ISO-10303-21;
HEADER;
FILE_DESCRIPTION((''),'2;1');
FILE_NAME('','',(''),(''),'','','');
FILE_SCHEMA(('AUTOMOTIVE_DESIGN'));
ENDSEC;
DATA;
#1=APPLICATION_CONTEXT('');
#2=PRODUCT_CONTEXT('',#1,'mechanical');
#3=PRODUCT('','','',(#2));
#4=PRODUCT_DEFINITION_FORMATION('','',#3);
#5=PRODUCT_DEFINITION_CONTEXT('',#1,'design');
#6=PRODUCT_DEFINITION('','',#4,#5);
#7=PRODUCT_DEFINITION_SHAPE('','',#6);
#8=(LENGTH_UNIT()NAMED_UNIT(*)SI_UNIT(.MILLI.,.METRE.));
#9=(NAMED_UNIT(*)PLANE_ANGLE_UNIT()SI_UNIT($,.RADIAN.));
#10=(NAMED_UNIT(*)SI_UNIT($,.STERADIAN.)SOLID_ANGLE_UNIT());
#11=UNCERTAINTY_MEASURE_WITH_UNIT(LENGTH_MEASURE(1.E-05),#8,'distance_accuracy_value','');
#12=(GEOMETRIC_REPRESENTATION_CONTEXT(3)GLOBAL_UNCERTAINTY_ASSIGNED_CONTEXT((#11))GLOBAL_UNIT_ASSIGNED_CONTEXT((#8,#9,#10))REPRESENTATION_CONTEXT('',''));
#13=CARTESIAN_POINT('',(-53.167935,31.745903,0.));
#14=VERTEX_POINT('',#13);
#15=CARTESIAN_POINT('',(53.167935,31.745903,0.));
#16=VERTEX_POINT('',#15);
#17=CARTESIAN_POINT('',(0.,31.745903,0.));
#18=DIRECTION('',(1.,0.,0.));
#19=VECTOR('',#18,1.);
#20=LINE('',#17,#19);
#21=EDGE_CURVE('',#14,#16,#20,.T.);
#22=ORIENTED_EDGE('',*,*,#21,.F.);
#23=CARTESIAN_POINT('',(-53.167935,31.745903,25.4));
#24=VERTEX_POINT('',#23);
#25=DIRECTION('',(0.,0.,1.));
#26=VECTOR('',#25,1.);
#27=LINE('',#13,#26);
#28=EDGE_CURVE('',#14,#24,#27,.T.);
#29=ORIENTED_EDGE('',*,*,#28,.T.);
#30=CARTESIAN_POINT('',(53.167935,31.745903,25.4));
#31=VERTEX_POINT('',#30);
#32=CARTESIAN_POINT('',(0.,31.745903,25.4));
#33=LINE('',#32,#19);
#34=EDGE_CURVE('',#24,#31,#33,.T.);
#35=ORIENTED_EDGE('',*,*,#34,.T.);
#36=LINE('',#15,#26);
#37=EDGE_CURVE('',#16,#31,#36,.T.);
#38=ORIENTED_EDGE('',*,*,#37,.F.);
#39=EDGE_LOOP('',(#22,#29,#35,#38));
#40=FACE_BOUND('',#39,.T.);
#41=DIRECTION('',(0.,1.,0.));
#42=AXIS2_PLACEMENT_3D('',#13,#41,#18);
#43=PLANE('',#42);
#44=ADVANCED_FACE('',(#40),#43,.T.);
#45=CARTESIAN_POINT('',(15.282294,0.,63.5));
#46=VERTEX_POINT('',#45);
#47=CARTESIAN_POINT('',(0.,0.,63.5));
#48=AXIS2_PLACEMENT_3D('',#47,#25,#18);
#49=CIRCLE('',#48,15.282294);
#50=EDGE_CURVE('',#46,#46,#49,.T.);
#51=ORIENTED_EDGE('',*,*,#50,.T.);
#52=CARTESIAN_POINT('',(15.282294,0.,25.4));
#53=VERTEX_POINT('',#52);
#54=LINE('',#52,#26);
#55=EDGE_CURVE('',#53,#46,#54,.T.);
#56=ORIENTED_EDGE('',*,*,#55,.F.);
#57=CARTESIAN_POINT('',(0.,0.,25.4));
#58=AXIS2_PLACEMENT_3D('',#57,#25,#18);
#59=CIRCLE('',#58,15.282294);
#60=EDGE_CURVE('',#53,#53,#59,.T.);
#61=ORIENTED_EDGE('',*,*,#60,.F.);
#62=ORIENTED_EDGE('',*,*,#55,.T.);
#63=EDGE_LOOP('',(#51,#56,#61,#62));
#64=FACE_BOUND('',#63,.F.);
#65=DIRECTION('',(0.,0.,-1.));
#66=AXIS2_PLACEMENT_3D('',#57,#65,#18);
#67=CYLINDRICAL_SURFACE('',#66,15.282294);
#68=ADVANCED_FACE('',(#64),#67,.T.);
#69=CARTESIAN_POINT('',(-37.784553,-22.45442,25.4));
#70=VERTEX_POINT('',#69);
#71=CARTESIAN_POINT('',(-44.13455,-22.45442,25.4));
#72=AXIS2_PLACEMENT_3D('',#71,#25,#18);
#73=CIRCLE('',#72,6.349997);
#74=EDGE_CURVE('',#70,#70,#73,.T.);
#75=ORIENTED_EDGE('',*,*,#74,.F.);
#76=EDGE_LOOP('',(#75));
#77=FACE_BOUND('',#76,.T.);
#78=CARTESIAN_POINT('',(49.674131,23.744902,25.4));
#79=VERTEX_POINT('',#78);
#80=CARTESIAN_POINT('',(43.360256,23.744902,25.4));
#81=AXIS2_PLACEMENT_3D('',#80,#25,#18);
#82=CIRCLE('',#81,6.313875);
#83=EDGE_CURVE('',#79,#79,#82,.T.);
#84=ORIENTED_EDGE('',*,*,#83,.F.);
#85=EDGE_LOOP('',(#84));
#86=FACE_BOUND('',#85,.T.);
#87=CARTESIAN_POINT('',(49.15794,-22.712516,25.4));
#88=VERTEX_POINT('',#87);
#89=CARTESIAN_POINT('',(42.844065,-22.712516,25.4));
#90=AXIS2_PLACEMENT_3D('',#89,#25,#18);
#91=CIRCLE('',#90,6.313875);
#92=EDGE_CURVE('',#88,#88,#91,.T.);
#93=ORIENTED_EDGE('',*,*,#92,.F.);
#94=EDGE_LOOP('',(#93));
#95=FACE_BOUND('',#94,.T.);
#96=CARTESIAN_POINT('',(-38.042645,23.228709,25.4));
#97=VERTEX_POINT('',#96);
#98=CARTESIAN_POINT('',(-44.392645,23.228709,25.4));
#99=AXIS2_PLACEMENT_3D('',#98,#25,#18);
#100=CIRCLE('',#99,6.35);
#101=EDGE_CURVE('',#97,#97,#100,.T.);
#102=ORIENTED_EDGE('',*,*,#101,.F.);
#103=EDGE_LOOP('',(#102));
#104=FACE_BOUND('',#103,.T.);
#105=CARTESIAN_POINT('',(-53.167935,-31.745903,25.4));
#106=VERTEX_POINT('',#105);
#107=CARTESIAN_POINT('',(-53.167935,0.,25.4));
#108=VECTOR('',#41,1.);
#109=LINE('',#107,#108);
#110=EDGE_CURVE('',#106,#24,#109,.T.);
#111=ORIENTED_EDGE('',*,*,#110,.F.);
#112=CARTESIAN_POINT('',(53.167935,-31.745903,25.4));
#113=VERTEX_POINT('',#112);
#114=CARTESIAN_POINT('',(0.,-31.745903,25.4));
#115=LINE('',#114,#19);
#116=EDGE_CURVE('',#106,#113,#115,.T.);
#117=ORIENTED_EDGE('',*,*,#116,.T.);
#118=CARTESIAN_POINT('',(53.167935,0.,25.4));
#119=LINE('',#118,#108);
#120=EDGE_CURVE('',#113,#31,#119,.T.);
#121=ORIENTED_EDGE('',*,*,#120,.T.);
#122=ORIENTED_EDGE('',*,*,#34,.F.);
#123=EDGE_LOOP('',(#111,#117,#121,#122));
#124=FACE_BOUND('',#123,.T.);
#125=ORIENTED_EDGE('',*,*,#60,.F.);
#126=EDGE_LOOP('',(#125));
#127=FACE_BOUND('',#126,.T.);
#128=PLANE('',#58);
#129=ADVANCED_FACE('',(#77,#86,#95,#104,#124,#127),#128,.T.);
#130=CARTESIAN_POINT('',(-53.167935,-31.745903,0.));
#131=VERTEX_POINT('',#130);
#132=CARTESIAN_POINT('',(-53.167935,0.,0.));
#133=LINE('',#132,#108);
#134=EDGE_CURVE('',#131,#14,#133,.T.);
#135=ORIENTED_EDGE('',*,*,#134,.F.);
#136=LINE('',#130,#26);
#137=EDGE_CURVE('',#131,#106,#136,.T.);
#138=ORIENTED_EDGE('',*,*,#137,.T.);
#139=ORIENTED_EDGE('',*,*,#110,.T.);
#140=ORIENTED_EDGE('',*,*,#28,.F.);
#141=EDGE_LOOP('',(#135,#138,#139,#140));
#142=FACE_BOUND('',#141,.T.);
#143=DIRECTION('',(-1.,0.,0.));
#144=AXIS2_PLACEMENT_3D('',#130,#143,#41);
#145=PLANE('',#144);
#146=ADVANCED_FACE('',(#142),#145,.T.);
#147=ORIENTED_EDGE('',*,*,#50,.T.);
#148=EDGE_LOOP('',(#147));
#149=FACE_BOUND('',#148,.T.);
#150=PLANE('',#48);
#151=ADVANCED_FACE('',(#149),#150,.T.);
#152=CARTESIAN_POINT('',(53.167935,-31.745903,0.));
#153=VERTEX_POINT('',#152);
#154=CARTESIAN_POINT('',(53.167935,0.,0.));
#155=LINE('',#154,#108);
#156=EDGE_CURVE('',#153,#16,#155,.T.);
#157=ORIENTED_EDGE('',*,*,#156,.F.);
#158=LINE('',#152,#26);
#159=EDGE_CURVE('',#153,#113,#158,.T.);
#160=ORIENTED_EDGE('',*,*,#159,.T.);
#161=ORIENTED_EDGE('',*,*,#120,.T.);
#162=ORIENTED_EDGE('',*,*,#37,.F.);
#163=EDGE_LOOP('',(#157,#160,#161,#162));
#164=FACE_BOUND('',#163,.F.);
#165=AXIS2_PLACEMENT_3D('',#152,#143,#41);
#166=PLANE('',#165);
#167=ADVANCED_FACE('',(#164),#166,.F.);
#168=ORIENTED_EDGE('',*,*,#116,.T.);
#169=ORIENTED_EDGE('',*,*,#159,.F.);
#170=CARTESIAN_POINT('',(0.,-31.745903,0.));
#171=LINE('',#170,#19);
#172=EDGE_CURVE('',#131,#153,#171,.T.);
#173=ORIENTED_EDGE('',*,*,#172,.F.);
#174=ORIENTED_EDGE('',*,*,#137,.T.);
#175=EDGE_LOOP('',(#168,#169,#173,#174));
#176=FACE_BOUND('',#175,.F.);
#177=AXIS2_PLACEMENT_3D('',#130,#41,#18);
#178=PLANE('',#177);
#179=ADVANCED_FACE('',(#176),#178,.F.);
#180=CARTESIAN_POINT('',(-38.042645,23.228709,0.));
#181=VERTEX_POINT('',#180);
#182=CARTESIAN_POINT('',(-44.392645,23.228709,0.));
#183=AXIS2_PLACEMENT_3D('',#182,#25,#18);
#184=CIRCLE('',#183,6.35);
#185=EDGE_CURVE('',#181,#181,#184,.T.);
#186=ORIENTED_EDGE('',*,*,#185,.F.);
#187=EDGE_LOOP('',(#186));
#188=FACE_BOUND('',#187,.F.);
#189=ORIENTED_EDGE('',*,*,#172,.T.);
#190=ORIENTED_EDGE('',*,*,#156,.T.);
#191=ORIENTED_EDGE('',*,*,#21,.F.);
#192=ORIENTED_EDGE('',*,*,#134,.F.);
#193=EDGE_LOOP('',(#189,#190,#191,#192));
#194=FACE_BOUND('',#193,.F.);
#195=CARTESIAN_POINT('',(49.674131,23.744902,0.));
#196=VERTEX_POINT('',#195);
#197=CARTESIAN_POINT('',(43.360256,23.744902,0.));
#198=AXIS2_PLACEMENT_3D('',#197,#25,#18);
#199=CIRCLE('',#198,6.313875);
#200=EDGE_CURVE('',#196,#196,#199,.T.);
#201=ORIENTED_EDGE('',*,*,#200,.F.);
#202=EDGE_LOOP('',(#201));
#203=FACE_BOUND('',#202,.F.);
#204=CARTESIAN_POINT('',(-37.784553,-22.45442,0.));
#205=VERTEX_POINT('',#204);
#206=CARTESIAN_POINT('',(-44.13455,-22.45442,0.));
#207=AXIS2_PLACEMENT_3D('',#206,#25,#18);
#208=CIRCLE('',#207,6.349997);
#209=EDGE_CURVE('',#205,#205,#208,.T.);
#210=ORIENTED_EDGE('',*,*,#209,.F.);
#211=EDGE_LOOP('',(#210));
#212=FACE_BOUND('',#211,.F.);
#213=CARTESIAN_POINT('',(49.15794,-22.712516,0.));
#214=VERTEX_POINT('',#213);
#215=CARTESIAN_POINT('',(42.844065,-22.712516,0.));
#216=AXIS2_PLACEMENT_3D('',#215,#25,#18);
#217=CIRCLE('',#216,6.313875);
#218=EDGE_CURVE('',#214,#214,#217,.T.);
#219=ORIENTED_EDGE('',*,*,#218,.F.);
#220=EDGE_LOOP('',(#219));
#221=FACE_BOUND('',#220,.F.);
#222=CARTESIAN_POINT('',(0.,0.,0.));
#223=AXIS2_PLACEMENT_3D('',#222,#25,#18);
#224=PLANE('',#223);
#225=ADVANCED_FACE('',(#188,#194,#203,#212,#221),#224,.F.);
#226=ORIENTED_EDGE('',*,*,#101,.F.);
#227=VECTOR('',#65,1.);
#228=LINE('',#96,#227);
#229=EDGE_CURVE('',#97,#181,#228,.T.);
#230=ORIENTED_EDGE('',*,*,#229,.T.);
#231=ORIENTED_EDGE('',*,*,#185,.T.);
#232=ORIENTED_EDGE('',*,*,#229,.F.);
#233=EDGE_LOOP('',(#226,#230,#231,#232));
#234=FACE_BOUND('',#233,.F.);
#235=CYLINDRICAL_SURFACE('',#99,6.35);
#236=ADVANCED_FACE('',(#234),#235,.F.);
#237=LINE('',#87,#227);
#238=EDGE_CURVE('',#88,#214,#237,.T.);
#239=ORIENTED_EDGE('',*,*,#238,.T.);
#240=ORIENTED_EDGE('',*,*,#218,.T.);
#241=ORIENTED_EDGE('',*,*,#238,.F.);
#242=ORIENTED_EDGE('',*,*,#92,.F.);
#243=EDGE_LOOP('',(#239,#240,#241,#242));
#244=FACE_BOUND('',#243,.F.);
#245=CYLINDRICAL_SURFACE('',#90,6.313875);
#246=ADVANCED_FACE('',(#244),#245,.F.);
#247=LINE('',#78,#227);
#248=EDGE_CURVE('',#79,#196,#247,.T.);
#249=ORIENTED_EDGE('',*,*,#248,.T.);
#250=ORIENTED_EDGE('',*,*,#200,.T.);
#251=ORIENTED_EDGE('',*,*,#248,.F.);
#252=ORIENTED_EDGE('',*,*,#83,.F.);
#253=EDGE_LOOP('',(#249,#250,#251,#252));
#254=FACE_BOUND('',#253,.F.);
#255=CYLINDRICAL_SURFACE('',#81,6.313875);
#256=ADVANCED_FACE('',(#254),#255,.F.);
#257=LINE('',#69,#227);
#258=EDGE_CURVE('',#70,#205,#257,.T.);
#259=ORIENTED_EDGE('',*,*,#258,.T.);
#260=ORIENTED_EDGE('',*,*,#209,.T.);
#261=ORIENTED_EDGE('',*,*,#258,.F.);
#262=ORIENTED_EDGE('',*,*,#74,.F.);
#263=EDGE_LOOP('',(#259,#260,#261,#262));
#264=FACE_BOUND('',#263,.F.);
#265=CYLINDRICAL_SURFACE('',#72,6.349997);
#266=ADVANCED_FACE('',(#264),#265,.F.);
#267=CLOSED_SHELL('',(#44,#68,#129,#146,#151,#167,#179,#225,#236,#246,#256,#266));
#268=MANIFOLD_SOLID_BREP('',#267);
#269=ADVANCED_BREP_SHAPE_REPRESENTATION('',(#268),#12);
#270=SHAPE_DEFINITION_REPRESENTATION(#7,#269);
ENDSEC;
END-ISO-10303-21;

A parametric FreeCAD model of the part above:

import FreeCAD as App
import Part
import Sketcher

V = App.Vector
Q = App.Units.Quantity

doc = App.newDocument("Part")
body = doc.addObject("PartDesign::Body", "Body")

sketch1 = body.newObject("Sketcher::SketchObject", "Sketch")
sketch1.AttachmentSupport = (doc.getObject("XY_Plane"), [""])
sketch1.MapMode = "FlatFace"
sketch1.addGeometry(Part.LineSegment(V(-53, 32, 0), V(-53, -32, 0)), False)
sketch1.addGeometry(Part.LineSegment(V(-53, -32, 0), V(53, -32, 0)), False)
sketch1.addGeometry(Part.LineSegment(V(53, -32, 0), V(53, 32, 0)), False)
sketch1.addGeometry(Part.LineSegment(V(53, 32, 0), V(-53, 32, 0)), False)
sketch1.addConstraint(Sketcher.Constraint("Coincident", 0, 2, 1, 1))
sketch1.addConstraint(Sketcher.Constraint("Coincident", 1, 2, 2, 1))
sketch1.addConstraint(Sketcher.Constraint("Coincident", 2, 2, 3, 1))
sketch1.addConstraint(Sketcher.Constraint("Coincident", 3, 2, 0, 1))
sketch1.addConstraint(Sketcher.Constraint("Vertical", 0))
sketch1.addConstraint(Sketcher.Constraint("Horizontal", 1))
sketch1.addConstraint(Sketcher.Constraint("Vertical", 2))
sketch1.addConstraint(Sketcher.Constraint("Horizontal", 3))
sketch1.addConstraint(Sketcher.Constraint("Symmetric", 0, 2, 2, 2, -1, 1))
sketch1.addConstraint(Sketcher.Constraint("DistanceX", 1, 1, 1, 2, Q("106.33587 mm")))
sketch1.addConstraint(Sketcher.Constraint("DistanceY", 0, 2, 0, 1, Q("63.491806 mm")))
pad1 = body.newObject("PartDesign::Pad", "Pad")
pad1.Profile = sketch1
pad1.Length = Q("1 in")

sketch2 = body.newObject("Sketcher::SketchObject", "Sketch001")
sketch2.AttachmentSupport = (doc.getObject("XY_Plane"), [""])
sketch2.MapMode = "FlatFace"
sketch2.AttachmentOffset = App.Placement(V(0, 0, 1 * 25.4), App.Rotation())
sketch2.addGeometry(Part.Circle(V(-44, 23, 0), V(0, 0, 1), 6), False)
sketch2.addGeometry(Part.Circle(V(-44, -22, 0), V(0, 0, 1), 6), False)
sketch2.addGeometry(Part.Circle(V(43, 24, 0), V(0, 0, 1), 6), False)
sketch2.addGeometry(Part.Circle(V(43, -23, 0), V(0, 0, 1), 6), False)
sketch2.addConstraint(Sketcher.Constraint("Equal", 2, 3))
sketch2.addConstraint(Sketcher.Constraint("Diameter", 0, Q("0.5 in")))
sketch2.addConstraint(Sketcher.Constraint("Diameter", 2, Q("12.62775 mm")))
sketch2.addConstraint(Sketcher.Constraint("Diameter", 1, Q("12.699994 mm")))
sketch2.addConstraint(Sketcher.Constraint("DistanceY", -1, 1, 2, 3, Q("23.744902 mm")))
sketch2.addConstraint(Sketcher.Constraint("DistanceX", 0, 3, 2, 3, Q("87.752901 mm")))
sketch2.addConstraint(Sketcher.Constraint("DistanceY", -1, 1, 0, 3, Q("23.228709 mm")))
sketch2.addConstraint(Sketcher.Constraint("DistanceX", 1, 3, -1, 1, Q("44.13455 mm")))
sketch2.addConstraint(Sketcher.Constraint("DistanceY", 1, 3, -1, 1, Q("22.45442 mm")))
sketch2.addConstraint(Sketcher.Constraint("DistanceX", 3, 3, 2, 3, Q("0.516191 mm")))
sketch2.addConstraint(Sketcher.Constraint("DistanceY", 3, 3, 2, 3, Q("46.457418 mm")))
sketch2.addConstraint(Sketcher.Constraint("DistanceX", 0, 3, -1, 1, Q("44.392645 mm")))
pocket1 = body.newObject("PartDesign::Pocket", "Pocket")
pocket1.Profile = sketch2
pocket1.Length = Q("1 in")

sketch3 = body.newObject("Sketcher::SketchObject", "Sketch002")
sketch3.AttachmentSupport = (doc.getObject("XY_Plane"), [""])
sketch3.MapMode = "FlatFace"
sketch3.AttachmentOffset = App.Placement(V(0, 0, 1 * 25.4), App.Rotation())
sketch3.addGeometry(Part.Circle(V(0, 0, 0), V(0, 0, 1), 15), False)
sketch3.addConstraint(Sketcher.Constraint("Coincident", 0, 3, -1, 1))
sketch3.addConstraint(Sketcher.Constraint("Diameter", 0, Q("30.564588 mm")))
pad2 = body.newObject("PartDesign::Pad", "Pad001")
pad2.Profile = sketch3
pad2.Length = Q("1.5 in")

doc.recompute()
